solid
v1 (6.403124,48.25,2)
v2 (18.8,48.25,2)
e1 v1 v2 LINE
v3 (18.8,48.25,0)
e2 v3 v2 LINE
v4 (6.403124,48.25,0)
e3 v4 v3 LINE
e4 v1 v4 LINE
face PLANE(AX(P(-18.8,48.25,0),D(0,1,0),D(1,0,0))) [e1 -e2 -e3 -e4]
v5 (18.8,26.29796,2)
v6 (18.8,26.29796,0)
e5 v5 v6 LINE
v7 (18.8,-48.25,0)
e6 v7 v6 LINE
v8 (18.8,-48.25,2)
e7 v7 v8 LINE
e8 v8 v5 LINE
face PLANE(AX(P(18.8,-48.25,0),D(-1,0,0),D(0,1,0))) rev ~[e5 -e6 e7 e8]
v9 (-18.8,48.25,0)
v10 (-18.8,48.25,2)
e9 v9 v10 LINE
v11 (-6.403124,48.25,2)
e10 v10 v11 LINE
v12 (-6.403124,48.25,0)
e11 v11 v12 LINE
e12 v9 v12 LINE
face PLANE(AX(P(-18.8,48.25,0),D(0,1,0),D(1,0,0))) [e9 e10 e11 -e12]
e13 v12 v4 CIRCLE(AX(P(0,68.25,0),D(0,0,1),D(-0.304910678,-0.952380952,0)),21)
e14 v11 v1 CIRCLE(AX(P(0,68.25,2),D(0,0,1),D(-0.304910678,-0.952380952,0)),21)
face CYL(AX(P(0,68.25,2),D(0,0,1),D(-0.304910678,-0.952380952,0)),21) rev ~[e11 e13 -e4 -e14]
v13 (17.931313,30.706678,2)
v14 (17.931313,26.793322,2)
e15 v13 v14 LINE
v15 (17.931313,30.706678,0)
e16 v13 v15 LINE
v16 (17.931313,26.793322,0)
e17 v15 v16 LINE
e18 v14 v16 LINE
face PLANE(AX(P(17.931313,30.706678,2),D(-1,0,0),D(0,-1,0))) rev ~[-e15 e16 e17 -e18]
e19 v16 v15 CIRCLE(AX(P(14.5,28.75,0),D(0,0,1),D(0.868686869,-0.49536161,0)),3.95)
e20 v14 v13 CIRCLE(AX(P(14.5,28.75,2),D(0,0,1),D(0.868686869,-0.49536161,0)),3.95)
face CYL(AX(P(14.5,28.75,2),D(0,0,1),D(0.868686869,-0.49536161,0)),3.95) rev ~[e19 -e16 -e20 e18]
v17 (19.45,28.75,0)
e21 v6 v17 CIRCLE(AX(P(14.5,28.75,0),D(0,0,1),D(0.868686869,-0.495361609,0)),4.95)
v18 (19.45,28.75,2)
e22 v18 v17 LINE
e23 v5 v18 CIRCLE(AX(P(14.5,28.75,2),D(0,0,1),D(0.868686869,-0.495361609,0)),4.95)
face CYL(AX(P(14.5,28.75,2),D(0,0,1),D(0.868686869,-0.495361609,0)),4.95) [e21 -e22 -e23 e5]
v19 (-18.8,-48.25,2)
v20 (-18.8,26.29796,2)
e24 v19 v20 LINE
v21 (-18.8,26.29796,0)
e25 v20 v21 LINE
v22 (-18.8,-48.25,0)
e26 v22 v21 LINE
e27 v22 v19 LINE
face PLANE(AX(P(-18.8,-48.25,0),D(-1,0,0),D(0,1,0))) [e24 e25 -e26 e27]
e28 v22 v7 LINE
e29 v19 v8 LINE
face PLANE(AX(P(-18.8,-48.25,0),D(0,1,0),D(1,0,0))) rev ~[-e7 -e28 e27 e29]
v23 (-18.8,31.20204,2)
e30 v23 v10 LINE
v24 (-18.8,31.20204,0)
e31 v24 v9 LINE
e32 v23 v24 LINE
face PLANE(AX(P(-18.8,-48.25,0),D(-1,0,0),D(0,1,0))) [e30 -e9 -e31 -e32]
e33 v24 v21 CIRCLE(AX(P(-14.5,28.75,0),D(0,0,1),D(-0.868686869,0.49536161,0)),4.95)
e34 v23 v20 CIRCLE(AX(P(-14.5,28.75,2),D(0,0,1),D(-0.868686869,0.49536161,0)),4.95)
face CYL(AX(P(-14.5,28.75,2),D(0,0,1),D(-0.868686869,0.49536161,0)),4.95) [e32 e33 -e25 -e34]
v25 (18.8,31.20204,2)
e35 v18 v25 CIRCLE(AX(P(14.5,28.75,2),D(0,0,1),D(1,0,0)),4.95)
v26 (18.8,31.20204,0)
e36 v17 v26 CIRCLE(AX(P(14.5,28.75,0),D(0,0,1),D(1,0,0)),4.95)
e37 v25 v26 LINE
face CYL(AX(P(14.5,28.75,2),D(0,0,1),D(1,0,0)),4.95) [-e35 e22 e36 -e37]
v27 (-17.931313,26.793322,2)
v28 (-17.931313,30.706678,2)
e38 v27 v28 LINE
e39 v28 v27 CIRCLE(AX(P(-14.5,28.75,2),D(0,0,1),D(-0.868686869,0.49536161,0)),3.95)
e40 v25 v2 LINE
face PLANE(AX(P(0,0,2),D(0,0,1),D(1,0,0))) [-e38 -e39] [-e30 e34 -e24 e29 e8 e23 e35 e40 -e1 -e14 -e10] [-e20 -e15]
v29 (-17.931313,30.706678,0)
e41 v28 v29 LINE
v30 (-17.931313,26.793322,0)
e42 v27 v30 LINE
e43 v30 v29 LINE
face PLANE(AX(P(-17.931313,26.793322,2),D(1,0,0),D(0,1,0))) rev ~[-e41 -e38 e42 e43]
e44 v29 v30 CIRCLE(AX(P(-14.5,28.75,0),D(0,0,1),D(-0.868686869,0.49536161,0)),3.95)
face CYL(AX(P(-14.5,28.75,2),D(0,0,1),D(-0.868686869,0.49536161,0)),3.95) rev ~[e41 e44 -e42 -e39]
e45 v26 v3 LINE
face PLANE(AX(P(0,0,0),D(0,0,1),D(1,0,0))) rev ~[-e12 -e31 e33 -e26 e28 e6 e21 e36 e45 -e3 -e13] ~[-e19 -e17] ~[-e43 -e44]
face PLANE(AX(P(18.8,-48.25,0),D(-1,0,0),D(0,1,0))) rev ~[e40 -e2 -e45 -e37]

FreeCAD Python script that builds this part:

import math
import FreeCAD as App
import Part
import Sketcher

V = App.Vector

doc = App.newDocument("Part")
body = doc.addObject("PartDesign::Body", "Body")

# Sketch on XY plane
sketch1 = doc.addObject("Sketcher::SketchObject", "Sketch")
body.addObject(sketch1)
sketch1.AttachmentSupport = (doc.XY_Plane, [""])
sketch1.MapMode = "FlatFace"
sketch1.addGeometry([
    Part.LineSegment(V(-19, 48, 0), V(-19, -48, 0)),
    Part.LineSegment(V(-19, -48, 0), V(19, -48, 0)),
    Part.LineSegment(V(19, -48, 0), V(19, 48, 0)),
    Part.LineSegment(V(19, 48, 0), V(-19, 48, 0)),
], False)
sketch1.addConstraint([
    Sketcher.Constraint("Coincident", 0, 2, 1, 1),
    Sketcher.Constraint("Coincident", 1, 2, 2, 1),
    Sketcher.Constraint("Coincident", 2, 2, 3, 1),
    Sketcher.Constraint("Coincident", 3, 2, 0, 1),
    Sketcher.Constraint("Vertical", 0),
    Sketcher.Constraint("Horizontal", 1),
    Sketcher.Constraint("Vertical", 2),
    Sketcher.Constraint("Horizontal", 3),
    Sketcher.Constraint("Symmetric", 0, 2, 2, 2, -1, 1),
    Sketcher.Constraint("DistanceX", 1, 1, 1, 2, 37.6),
    Sketcher.Constraint("DistanceY", 0, 2, 0, 1, 96.5),
])
pad1 = doc.addObject("PartDesign::Pad", "Pad")
body.addObject(pad1)
pad1.Profile = sketch1
pad1.Length = 2

# Sketch on XY plane
sketch2 = doc.addObject("Sketcher::SketchObject", "Sketch001")
body.addObject(sketch2)
sketch2.AttachmentSupport = (doc.XY_Plane, [""])
sketch2.MapMode = "FlatFace"
sketch2.AttachmentOffset = App.Placement(V(0, 0, 2), App.Rotation())
sketch2.addGeometry([
    Part.LineSegment(V(-18.8, 26.3, 0), V(-18.8, 31.2, 0)),  # 0
    Part.ArcOfCircle(Part.Circle(V(-14.5, 28.8, 0), V(0, 0, 1), 5), math.radians(150), math.radians(210)),  # 1
    Part.ArcOfCircle(Part.Circle(V(14.5, 28.8, 0), V(0, 0, 1), 5), math.radians(0), math.radians(30)),  # 2
    Part.LineSegment(V(18.8, 31.2, 0), V(18.8, 26.3, 0)),  # 3
    Part.ArcOfCircle(Part.Circle(V(14.5, 28.8, 0), V(0, 0, 1), 5), math.radians(-30), math.radians(0)),  # 4
], False)
sketch2.addConstraint([
    Sketcher.Constraint("Coincident", 0, 1, 1, 2),
    Sketcher.Constraint("Coincident", 1, 1, 0, 2),
    Sketcher.Constraint("Coincident", 2, 2, 3, 1),
    Sketcher.Constraint("Coincident", 3, 2, 4, 1),
    Sketcher.Constraint("Tangent", 4, 2, 2, 1),
    Sketcher.Constraint("Vertical", 0),
    Sketcher.Constraint("Vertical", 3),
    Sketcher.Constraint("Equal", 1, 2),
    Sketcher.Constraint("Equal", 2, 4),
    Sketcher.Constraint("Symmetric", 1, 3, 2, 3, -2),
    Sketcher.Constraint("Horizontal", 1, 1, 2, 2),
    Sketcher.Constraint("Horizontal", 2, 3, 4, 2),
    Sketcher.Constraint("Radius", 1, 4.95),
    Sketcher.Constraint("DistanceX", 1, 3, 2, 3, 29.0),
    Sketcher.Constraint("DistanceX", 0, 1, -1, 1, 18.8),
    Sketcher.Constraint("DistanceY", -1, 1, 1, 3, 28.75),
])
pad2 = doc.addObject("PartDesign::Pad", "Pad001")
body.addObject(pad2)
pad2.Profile = sketch2
pad2.Type = "UpToLast"
pad2.Reversed = True

# Sketch on XY plane
sketch3 = doc.addObject("Sketcher::SketchObject", "Sketch002")
body.addObject(sketch3)
sketch3.AttachmentSupport = (doc.XY_Plane, [""])
sketch3.MapMode = "FlatFace"
sketch3.AttachmentOffset = App.Placement(V(0, 0, 2), App.Rotation())
sketch3.addGeometry([
    Part.LineSegment(V(-17.9, 26.8, 0), V(-17.9, 30.7, 0)),  # 0
    Part.ArcOfCircle(Part.Circle(V(-14.5, 28.8, 0), V(0, 0, 1), 4), math.radians(150), math.radians(210)),  # 1
    Part.LineSegment(V(17.9, 30.7, 0), V(17.9, 26.8, 0)),  # 2
    Part.ArcOfCircle(Part.Circle(V(14.5, 28.8, 0), V(0, 0, 1), 4), math.radians(-30), math.radians(30)),  # 3
    Part.LineSegment(V(6.4, 48.2, 0), V(-6.4, 48.2, 0)),  # 4
    Part.ArcOfCircle(Part.Circle(V(0, 68.2, 0), V(0, 0, 1), 21), math.radians(-108), math.radians(-72)),  # 5
], False)
sketch3.addConstraint([
    Sketcher.Constraint("Coincident", 0, 1, 1, 2),
    Sketcher.Constraint("Coincident", 1, 1, 0, 2),
    Sketcher.Constraint("Coincident", 2, 1, 3, 2),
    Sketcher.Constraint("Coincident", 3, 1, 2, 2),
    Sketcher.Constraint("Coincident", 4, 1, 5, 2),
    Sketcher.Constraint("Coincident", 5, 1, 4, 2),
    Sketcher.Constraint("Vertical", 0),
    Sketcher.Constraint("Vertical", 2),
    Sketcher.Constraint("Horizontal", 4),
    Sketcher.Constraint("Equal", 1, 3),
    Sketcher.Constraint("Symmetric", 1, 3, 3, 3, -2),
    Sketcher.Constraint("PointOnObject", 5, 3, -2),
    Sketcher.Constraint("Horizontal", 1, 1, 2, 1),
    Sketcher.Constraint("Radius", 5, 21.0),
    Sketcher.Constraint("Radius", 1, 3.95),
    Sketcher.Constraint("DistanceX", 1, 3, 3, 3, 29.0),
    Sketcher.Constraint("DistanceY", 4, 1, 5, 3, 20.0),
    Sketcher.Constraint("DistanceY", 1, 3, 5, 3, 39.5),
    Sketcher.Constraint("DistanceY", -1, 1, 1, 3, 28.75),
    Sketcher.Constraint("DistanceY", 0, 1, 0, 2, 3.913357),
])
pocket1 = doc.addObject("PartDesign::Pocket", "Pocket")
body.addObject(pocket1)
pocket1.Profile = sketch3
pocket1.Type = "ThroughAll"

doc.recompute()
